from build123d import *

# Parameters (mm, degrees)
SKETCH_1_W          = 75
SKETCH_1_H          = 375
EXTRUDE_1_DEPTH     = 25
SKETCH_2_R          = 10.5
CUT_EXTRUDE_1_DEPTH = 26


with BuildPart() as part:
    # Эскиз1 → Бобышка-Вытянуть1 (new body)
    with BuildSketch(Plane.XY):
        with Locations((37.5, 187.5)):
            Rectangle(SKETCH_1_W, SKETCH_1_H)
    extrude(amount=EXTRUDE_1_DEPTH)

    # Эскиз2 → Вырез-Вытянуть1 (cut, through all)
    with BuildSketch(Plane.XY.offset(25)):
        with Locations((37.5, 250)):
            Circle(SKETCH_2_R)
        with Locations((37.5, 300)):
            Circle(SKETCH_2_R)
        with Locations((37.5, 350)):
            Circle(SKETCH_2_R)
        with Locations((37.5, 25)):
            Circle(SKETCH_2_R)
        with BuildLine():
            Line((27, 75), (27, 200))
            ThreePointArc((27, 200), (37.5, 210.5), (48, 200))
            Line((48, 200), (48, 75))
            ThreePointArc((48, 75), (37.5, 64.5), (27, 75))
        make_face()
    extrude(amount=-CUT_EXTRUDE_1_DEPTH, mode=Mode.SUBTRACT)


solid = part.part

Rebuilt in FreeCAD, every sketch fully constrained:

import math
import FreeCAD as App
import Part
import Sketcher
from FreeCAD import Vector
Q = App.Units.Quantity

doc = App.newDocument("Part")
body = doc.addObject("PartDesign::Body", "Body")

# Sketch on XY plane
sketch1 = body.newObject("Sketcher::SketchObject", "Sketch")
sketch1.AttachmentSupport = (doc.getObject("XY_Plane"), [""])
sketch1.MapMode = "FlatFace"
sketch1.addGeometry([
    Part.LineSegment(Vector(0, 375, 0), Vector(0, 0, 0)),
    Part.LineSegment(Vector(0, 0, 0), Vector(75, 0, 0)),
    Part.LineSegment(Vector(75, 0, 0), Vector(75, 375, 0)),
    Part.LineSegment(Vector(75, 375, 0), Vector(0, 375, 0)),
], False)
sketch1.addConstraint([
    Sketcher.Constraint("Coincident", 0, 2, 1, 1),
    Sketcher.Constraint("Coincident", 1, 2, 2, 1),
    Sketcher.Constraint("Coincident", 2, 2, 3, 1),
    Sketcher.Constraint("Coincident", 3, 2, 0, 1),
    Sketcher.Constraint("Vertical", 0),
    Sketcher.Constraint("Horizontal", 1),
    Sketcher.Constraint("Vertical", 2),
    Sketcher.Constraint("Horizontal", 3),
    Sketcher.Constraint("Coincident", 0, 2, -1, 1),
    Sketcher.Constraint("DistanceX", 1, 1, 1, 2, Q("75 mm")),
    Sketcher.Constraint("DistanceY", 0, 2, 0, 1, Q("375 mm")),
])
pad1 = body.newObject("PartDesign::Pad", "Pad")
pad1.Profile = sketch1
pad1.Length = 25

# Sketch on XY plane
sketch2 = body.newObject("Sketcher::SketchObject", "Sketch001")
sketch2.AttachmentSupport = (doc.getObject("XY_Plane"), [""])
sketch2.MapMode = "FlatFace"
sketch2.AttachmentOffset = App.Placement(Vector(0, 0, 25), App.Rotation())
sketch2.addGeometry([
    Part.Circle(Vector(37.5, 250, 0), Vector(0, 0, 1), 10.5),  # 0
    Part.Circle(Vector(37.5, 300, 0), Vector(0, 0, 1), 10.5),  # 1
    Part.Circle(Vector(37.5, 350, 0), Vector(0, 0, 1), 10.5),  # 2
    Part.Circle(Vector(37.5, 25, 0), Vector(0, 0, 1), 10.5),  # 3
    Part.LineSegment(Vector(27, 200, 0), Vector(27, 75, 0)),  # 4
    Part.ArcOfCircle(Part.Circle(Vector(37.5, 75, 0), Vector(0, 0, 1), 10.5), math.radians(180), math.radians(360)),  # 5
    Part.LineSegment(Vector(48, 75, 0), Vector(48, 200, 0)),  # 6
    Part.ArcOfCircle(Part.Circle(Vector(37.5, 200, 0), Vector(0, 0, 1), 10.5), math.radians(0), math.radians(180)),  # 7
], False)
sketch2.addConstraint([
    Sketcher.Constraint("Tangent", 4, 2, 5, 1),
    Sketcher.Constraint("Tangent", 5, 2, 6, 1),
    Sketcher.Constraint("Tangent", 6, 2, 7, 1),
    Sketcher.Constraint("Tangent", 7, 2, 4, 1),
    Sketcher.Constraint("Vertical", 4),
    Sketcher.Constraint("Vertical", 6),
    Sketcher.Constraint("Equal", 0, 1),
    Sketcher.Constraint("Equal", 1, 2),
    Sketcher.Constraint("Equal", 2, 3),
    Sketcher.Constraint("Equal", 3, 5),
    Sketcher.Constraint("Vertical", 0, 3, 1, 3),
    Sketcher.Constraint("Vertical", 1, 3, 2, 3),
    Sketcher.Constraint("Vertical", 2, 3, 3, 3),
    Sketcher.Constraint("Vertical", 3, 3, 5, 3),
    Sketcher.Constraint("Diameter", 0, Q("21 mm")),
    Sketcher.Constraint("DistanceY", 4, 2, 4, 1, Q("125 mm")),
    Sketcher.Constraint("DistanceY", -1, 1, 0, 3, Q("250 mm")),
    Sketcher.Constraint("DistanceY", -1, 1, 1, 3, Q("300 mm")),
    Sketcher.Constraint("DistanceY", -1, 1, 2, 3, Q("350 mm")),
    Sketcher.Constraint("DistanceY", -1, 1, 3, 3, Q("25 mm")),
    Sketcher.Constraint("DistanceY", -1, 1, 5, 3, Q("75 mm")),
    Sketcher.Constraint("DistanceX", -1, 1, 4, 2, Q("27 mm")),
])
pocket1 = body.newObject("PartDesign::Pocket", "Pocket")
pocket1.Profile = sketch2
pocket1.Type = "ThroughAll"

doc.recompute()
